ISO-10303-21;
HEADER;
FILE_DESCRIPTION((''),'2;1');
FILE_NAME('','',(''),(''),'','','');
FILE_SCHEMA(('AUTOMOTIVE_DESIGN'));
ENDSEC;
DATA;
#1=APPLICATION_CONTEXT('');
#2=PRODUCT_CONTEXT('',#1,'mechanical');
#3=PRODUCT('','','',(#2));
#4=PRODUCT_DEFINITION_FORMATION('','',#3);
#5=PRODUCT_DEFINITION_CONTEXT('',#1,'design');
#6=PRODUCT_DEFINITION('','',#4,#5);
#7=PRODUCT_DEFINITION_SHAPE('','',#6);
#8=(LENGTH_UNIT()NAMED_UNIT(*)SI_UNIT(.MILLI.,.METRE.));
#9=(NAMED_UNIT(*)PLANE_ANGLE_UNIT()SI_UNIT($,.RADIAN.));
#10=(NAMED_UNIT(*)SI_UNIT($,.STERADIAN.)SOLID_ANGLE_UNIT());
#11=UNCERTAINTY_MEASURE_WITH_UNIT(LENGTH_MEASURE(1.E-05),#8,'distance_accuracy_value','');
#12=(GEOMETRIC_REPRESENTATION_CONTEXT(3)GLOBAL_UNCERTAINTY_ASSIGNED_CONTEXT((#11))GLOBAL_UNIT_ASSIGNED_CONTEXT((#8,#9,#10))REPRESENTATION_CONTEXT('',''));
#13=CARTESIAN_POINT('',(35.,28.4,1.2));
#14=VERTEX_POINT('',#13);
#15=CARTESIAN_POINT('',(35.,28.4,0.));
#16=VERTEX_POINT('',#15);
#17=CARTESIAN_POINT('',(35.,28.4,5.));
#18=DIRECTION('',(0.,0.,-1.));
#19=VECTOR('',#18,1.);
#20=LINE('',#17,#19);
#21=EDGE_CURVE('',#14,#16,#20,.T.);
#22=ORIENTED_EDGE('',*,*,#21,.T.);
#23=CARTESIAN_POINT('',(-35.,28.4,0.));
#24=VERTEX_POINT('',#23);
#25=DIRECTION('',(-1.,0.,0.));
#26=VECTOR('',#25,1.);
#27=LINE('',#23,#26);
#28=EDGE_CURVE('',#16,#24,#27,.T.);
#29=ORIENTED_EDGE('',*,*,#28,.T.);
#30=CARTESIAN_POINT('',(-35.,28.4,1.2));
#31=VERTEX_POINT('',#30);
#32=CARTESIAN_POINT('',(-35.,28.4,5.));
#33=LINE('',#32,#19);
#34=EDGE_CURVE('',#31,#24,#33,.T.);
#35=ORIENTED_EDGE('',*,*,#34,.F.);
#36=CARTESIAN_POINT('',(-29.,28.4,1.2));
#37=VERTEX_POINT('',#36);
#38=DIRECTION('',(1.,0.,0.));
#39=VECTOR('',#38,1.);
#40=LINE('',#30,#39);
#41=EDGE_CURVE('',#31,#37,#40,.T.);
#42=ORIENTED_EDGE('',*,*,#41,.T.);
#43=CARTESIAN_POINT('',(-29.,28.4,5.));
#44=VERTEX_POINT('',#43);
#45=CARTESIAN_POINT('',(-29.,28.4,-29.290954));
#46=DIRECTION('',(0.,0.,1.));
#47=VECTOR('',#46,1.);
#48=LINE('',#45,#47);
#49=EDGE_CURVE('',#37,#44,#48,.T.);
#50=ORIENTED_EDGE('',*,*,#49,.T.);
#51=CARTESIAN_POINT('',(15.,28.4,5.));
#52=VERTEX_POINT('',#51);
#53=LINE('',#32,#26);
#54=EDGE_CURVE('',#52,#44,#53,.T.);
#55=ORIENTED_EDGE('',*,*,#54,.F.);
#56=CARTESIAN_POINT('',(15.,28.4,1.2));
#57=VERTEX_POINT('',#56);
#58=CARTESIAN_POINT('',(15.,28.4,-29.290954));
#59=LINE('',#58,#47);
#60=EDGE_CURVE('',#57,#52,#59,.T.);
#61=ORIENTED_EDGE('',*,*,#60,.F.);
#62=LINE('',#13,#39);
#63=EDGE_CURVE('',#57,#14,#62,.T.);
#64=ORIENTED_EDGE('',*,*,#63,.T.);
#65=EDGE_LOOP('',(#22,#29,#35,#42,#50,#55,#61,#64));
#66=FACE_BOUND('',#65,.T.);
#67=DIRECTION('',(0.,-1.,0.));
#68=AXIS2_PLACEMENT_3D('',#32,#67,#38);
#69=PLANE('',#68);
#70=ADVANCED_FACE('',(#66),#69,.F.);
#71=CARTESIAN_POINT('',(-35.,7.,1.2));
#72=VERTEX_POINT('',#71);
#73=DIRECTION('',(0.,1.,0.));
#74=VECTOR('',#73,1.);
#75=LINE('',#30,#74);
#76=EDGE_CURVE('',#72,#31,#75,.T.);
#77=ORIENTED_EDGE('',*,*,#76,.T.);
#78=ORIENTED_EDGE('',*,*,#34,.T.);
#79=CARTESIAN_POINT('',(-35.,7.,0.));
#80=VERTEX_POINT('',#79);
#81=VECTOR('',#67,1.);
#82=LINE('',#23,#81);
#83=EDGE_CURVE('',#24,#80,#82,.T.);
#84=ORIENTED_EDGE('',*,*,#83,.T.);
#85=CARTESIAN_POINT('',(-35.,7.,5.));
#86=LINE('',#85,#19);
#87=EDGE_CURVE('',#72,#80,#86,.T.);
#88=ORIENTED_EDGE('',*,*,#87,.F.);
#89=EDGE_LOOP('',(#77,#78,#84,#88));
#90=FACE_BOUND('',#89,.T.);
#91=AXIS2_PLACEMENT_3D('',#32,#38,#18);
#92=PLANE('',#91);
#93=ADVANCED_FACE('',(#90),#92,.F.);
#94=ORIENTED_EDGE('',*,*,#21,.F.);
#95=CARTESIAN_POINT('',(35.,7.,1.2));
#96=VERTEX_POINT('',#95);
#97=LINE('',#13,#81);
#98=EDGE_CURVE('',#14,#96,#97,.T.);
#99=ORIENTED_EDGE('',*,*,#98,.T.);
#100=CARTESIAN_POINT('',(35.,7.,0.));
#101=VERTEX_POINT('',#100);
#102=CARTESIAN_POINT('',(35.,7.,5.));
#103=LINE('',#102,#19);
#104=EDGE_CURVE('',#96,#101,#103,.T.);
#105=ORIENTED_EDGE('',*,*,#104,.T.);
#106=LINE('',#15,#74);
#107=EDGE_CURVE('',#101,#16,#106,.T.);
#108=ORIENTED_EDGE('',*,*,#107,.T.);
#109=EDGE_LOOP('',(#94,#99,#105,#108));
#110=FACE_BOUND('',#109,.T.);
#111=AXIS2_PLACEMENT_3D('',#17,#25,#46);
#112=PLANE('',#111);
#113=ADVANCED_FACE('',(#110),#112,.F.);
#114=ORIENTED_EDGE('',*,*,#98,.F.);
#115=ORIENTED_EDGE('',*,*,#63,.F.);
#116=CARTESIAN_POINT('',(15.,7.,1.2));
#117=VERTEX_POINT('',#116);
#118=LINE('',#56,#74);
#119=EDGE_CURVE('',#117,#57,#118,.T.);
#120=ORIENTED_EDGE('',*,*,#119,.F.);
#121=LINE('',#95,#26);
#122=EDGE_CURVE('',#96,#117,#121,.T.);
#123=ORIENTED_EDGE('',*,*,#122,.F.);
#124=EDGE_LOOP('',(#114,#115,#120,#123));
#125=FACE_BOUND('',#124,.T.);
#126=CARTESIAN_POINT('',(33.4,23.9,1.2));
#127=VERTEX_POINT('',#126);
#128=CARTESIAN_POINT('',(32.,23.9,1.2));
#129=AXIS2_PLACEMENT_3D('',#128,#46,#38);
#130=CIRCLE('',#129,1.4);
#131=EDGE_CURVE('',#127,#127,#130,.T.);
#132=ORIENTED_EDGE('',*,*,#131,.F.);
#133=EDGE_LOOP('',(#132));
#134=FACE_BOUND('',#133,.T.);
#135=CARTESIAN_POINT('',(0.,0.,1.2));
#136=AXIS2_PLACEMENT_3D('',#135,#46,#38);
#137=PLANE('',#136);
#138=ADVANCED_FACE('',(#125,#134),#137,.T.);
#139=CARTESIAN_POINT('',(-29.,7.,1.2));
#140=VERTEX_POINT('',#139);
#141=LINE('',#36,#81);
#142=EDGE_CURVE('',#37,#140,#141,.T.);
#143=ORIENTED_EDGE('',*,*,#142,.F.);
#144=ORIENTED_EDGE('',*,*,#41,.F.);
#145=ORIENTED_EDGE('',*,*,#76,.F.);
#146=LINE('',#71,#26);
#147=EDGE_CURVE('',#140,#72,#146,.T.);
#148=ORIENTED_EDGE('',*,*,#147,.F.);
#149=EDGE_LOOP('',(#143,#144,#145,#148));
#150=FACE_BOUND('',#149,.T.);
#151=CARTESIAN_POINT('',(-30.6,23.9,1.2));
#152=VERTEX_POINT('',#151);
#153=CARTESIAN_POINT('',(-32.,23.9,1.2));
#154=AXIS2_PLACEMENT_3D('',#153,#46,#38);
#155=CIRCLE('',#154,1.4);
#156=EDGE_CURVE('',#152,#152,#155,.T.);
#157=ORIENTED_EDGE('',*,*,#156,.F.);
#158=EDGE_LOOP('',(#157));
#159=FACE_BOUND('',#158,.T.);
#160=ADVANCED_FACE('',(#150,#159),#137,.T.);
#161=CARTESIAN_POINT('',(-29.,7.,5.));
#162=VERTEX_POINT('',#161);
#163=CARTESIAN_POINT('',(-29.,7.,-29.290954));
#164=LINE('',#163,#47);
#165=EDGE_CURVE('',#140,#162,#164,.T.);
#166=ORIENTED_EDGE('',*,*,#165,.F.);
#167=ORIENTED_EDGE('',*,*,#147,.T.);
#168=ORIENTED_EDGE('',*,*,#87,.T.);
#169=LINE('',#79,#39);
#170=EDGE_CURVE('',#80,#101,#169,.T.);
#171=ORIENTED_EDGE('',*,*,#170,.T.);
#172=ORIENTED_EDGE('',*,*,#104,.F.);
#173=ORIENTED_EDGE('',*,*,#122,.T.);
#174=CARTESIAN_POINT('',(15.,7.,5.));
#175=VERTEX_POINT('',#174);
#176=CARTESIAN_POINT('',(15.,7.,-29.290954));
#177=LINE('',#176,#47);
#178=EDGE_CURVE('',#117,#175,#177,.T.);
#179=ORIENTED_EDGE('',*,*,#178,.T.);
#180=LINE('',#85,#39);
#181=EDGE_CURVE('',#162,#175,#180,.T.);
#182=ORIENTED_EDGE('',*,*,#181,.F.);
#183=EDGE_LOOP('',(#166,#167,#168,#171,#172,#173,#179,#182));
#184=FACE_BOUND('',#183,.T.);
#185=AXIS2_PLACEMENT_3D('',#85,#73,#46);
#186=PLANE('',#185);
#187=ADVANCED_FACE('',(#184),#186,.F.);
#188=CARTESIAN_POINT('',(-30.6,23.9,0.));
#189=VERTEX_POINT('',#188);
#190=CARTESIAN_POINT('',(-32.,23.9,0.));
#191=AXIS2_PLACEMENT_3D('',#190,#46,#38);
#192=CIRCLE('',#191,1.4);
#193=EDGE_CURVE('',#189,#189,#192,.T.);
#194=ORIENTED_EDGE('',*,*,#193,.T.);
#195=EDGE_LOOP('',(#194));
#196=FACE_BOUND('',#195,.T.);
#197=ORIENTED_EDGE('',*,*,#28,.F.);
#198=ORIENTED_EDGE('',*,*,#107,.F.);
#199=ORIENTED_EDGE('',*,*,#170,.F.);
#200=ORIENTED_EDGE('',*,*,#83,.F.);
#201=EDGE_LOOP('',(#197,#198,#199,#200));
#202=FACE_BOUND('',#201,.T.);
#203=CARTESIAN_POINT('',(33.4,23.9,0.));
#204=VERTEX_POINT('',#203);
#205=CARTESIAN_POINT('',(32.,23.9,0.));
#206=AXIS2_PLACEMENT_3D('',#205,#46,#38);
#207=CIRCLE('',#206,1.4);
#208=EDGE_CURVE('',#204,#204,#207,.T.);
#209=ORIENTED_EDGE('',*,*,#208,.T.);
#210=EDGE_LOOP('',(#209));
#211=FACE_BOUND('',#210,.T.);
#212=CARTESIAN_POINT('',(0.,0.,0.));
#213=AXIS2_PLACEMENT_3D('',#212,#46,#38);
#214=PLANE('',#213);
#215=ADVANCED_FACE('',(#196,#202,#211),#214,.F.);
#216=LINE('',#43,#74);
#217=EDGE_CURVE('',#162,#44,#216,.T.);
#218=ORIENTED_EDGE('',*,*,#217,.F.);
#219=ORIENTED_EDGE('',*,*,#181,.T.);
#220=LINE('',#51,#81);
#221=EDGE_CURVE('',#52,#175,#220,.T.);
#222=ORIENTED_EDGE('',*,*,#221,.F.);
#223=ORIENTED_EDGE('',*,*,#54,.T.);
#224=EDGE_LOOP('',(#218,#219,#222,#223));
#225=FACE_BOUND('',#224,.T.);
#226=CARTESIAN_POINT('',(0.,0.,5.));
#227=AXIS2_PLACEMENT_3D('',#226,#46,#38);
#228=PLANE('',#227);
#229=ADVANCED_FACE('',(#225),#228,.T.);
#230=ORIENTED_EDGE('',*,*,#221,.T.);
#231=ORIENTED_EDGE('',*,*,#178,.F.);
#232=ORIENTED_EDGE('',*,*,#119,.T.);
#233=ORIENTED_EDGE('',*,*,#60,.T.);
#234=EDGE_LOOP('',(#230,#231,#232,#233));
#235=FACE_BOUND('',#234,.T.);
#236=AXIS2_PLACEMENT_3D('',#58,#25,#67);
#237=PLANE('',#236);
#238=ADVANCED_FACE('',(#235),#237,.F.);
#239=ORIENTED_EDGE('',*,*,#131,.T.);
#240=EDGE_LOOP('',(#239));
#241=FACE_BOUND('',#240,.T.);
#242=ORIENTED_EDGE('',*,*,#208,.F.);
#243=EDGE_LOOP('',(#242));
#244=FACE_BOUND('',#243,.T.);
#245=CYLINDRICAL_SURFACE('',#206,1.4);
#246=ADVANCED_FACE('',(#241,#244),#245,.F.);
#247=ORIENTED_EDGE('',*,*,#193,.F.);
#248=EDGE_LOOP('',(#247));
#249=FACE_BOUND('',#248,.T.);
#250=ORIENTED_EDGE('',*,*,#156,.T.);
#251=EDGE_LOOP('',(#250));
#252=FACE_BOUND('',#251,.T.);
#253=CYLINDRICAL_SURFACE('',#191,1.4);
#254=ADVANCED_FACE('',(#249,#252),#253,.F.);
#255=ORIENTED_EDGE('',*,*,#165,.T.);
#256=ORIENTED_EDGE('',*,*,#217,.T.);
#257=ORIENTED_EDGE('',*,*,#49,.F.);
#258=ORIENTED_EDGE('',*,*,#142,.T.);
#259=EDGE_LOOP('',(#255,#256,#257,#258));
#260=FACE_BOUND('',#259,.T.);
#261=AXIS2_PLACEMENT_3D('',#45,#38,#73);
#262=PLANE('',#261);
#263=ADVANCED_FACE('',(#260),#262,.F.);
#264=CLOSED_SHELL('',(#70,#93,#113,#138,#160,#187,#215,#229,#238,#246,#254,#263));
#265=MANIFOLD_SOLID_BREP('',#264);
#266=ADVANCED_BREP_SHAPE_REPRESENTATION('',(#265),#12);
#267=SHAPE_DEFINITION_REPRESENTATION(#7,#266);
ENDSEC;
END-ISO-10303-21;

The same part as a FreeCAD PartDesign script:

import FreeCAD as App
import Part
import Sketcher

V = App.Vector
Q = App.Units.Quantity


def add_polygon(sketch, points):
    """Adds a closed chain of lines whose ends are joined by coincident constraints."""
    first, n = sketch.GeometryCount, len(points)
    for a, b in zip(points, points[1:] + points[:1]):
        sketch.addGeometry(Part.LineSegment(App.Vector(*a, 0), App.Vector(*b, 0)), False)
    for i in range(n):
        sketch.addConstraint(Sketcher.Constraint("Coincident", first + i, 2, first + (i + 1) % n, 1))

doc = App.newDocument("Part")
body = doc.addObject("PartDesign::Body", "Body")

# Sketch on XY plane
sketch1 = body.newObject("Sketcher::SketchObject", "Sketch")
sketch1.AttachmentSupport = (doc.getObject("XY_Plane"), [""])
sketch1.MapMode = "FlatFace"
add_polygon(sketch1, [(-35, 28.4), (-35, 7), (35, 7), (35, 28.4)])  # lines 0-3
sketch1.addConstraint(Sketcher.Constraint("Vertical", 0))
sketch1.addConstraint(Sketcher.Constraint("Horizontal", 1))
sketch1.addConstraint(Sketcher.Constraint("Vertical", 2))
sketch1.addConstraint(Sketcher.Constraint("Horizontal", 3))
sketch1.addConstraint(Sketcher.Constraint("DistanceX", 1, 1, 1, 2, Q("70 mm")))
sketch1.addConstraint(Sketcher.Constraint("DistanceY", 0, 2, 0, 1, Q("21.4 mm")))
sketch1.addConstraint(Sketcher.Constraint("DistanceX", 0, 2, -1, 1, Q("35 mm")))
sketch1.addConstraint(Sketcher.Constraint("DistanceY", -1, 1, 0, 2, Q("7 mm")))
pad1 = body.newObject("PartDesign::Pad", "Pad")
pad1.Profile = sketch1
pad1.Length = 5

# Sketch on XY plane
sketch2 = body.newObject("Sketcher::SketchObject", "Sketch001")
sketch2.AttachmentSupport = (doc.getObject("XY_Plane"), [""])
sketch2.MapMode = "FlatFace"
sketch2.AttachmentOffset = App.Placement(V(0, 0, 5), App.Rotation())
add_polygon(sketch2, [(-35, 28.4), (-35, 7), (-29, 7), (-29, 28.4)])  # lines 0-3
add_polygon(sketch2, [(15, 28.4), (15, 7), (35, 7), (35, 28.4)])  # lines 4-7
sketch2.addConstraint(Sketcher.Constraint("Vertical", 0))
sketch2.addConstraint(Sketcher.Constraint("Horizontal", 1))
sketch2.addConstraint(Sketcher.Constraint("Vertical", 2))
sketch2.addConstraint(Sketcher.Constraint("Horizontal", 3))
sketch2.addConstraint(Sketcher.Constraint("Vertical", 4))
sketch2.addConstraint(Sketcher.Constraint("Horizontal", 5))
sketch2.addConstraint(Sketcher.Constraint("Vertical", 6))
sketch2.addConstraint(Sketcher.Constraint("Horizontal", 7))
sketch2.addConstraint(Sketcher.Constraint("Symmetric", 0, 2, 5, 2, -2))
sketch2.addConstraint(Sketcher.Constraint("Horizontal", 3, 2, 6, 2))
sketch2.addConstraint(Sketcher.Constraint("DistanceX", 1, 1, 1, 2, Q("6 mm")))
sketch2.addConstraint(Sketcher.Constraint("DistanceX", 5, 1, 5, 2, Q("20 mm")))
sketch2.addConstraint(Sketcher.Constraint("DistanceY", 0, 2, 0, 1, Q("21.4 mm")))
sketch2.addConstraint(Sketcher.Constraint("DistanceX", 0, 2, -1, 1, Q("35 mm")))
sketch2.addConstraint(Sketcher.Constraint("DistanceY", -1, 1, 0, 2, Q("7 mm")))
pocket1 = body.newObject("PartDesign::Pocket", "Pocket")
pocket1.Profile = sketch2
pocket1.Length = 3.8

# Sketch on XY plane
sketch3 = body.newObject("Sketcher::SketchObject", "Sketch002")
sketch3.AttachmentSupport = (doc.getObject("XY_Plane"), [""])
sketch3.MapMode = "FlatFace"
sketch3.AttachmentOffset = App.Placement(V(0, 0, 1.2), App.Rotation())
sketch3.addGeometry(Part.Circle(V(32, 23.9, 0), V(0, 0, 1), 1.4), False)
sketch3.addGeometry(Part.Circle(V(-32, 23.9, 0), V(0, 0, 1), 1.4), False)
sketch3.addConstraint(Sketcher.Constraint("Equal", 0, 1))
sketch3.addConstraint(Sketcher.Constraint("Symmetric", 0, 3, 1, 3, -2))
sketch3.addConstraint(Sketcher.Constraint("Diameter", 0, Q("2.8 mm")))
sketch3.addConstraint(Sketcher.Constraint("DistanceX", -1, 1, 0, 3, Q("32 mm")))
sketch3.addConstraint(Sketcher.Constraint("DistanceY", -1, 1, 0, 3, Q("23.9 mm")))
pocket2 = body.newObject("PartDesign::Pocket", "Pocket001")
pocket2.Profile = sketch3
pocket2.Type = "ThroughAll"

doc.recompute()
